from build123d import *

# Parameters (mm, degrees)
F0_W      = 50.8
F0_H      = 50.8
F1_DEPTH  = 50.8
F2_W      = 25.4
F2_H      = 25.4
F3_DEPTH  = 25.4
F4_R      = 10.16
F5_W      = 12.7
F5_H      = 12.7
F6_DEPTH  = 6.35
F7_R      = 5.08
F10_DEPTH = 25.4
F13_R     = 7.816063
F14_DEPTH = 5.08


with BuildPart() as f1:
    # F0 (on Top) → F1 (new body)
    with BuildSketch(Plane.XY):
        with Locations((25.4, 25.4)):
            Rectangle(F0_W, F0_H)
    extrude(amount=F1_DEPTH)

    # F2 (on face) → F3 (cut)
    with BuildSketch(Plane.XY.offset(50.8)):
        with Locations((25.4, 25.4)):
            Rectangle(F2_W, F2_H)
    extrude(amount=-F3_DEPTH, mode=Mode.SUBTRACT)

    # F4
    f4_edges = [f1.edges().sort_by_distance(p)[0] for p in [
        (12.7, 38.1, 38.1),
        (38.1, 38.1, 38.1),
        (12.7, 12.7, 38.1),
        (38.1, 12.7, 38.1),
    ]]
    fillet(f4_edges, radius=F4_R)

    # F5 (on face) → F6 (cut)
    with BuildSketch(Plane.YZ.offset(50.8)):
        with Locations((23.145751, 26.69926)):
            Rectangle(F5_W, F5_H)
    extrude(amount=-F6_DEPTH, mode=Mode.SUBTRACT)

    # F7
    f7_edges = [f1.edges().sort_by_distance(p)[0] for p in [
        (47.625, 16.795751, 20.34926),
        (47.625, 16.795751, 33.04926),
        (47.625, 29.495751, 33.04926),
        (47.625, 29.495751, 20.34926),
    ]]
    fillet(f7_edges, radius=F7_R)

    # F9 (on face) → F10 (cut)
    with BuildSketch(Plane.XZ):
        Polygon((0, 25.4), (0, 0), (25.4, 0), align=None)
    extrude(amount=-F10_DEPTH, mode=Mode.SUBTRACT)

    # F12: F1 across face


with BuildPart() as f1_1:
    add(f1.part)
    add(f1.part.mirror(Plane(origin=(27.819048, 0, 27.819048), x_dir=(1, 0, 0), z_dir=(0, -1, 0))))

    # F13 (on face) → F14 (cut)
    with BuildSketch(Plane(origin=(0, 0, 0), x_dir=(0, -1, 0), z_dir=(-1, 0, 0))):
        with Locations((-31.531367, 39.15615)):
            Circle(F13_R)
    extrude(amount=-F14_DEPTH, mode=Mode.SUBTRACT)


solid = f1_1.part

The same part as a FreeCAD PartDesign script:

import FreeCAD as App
import Part
import Sketcher

V = App.Vector
Q = App.Units.Quantity


def edges_at(feature, points):
    """Names of the edges that pass closest to the given points."""
    edges = feature.Shape.Edges
    near = lambda p: min(range(len(edges)), key=lambda i: edges[i].distToShape(Part.Vertex(*p))[0])
    return sorted({f"Edge{near(p) + 1}" for p in points})


def add_polygon(sketch, points):
    """Adds a closed chain of lines whose ends are joined by coincident constraints."""
    first, n = sketch.GeometryCount, len(points)
    for a, b in zip(points, points[1:] + points[:1]):
        sketch.addGeometry(Part.LineSegment(App.Vector(*a, 0), App.Vector(*b, 0)), False)
    for i in range(n):
        sketch.addConstraint(Sketcher.Constraint("Coincident", first + i, 2, first + (i + 1) % n, 1))

doc = App.newDocument("Part")
body = doc.addObject("PartDesign::Body", "Body")

# Sketch on XY plane
sketch1 = doc.addObject("Sketcher::SketchObject", "Sketch")
body.addObject(sketch1)
sketch1.AttachmentSupport = (doc.XY_Plane, [""])
sketch1.MapMode = "FlatFace"
add_polygon(sketch1, [(0, 51), (0, 0), (51, 0), (51, 51)])  # lines 0-3
sketch1.addConstraint([
    Sketcher.Constraint("Vertical", 0),
    Sketcher.Constraint("Horizontal", 1),
    Sketcher.Constraint("Vertical", 2),
    Sketcher.Constraint("Horizontal", 3),
    Sketcher.Constraint("Coincident", 0, 2, -1, 1),
    Sketcher.Constraint("Equal", 3, 0),
    Sketcher.Constraint("DistanceX", 1, 1, 1, 2, Q("2 in")),
])
pad1 = doc.addObject("PartDesign::Pad", "Pad")
body.addObject(pad1)
pad1.Profile = sketch1
pad1.Length = Q("2 in")

# Sketch on XY plane
sketch2 = doc.addObject("Sketcher::SketchObject", "Sketch001")
body.addObject(sketch2)
sketch2.AttachmentSupport = (doc.XY_Plane, [""])
sketch2.MapMode = "FlatFace"
sketch2.AttachmentOffset = App.Placement(V(0, 0, 2 * 25.4), App.Rotation())
add_polygon(sketch2, [(13, 38), (13, 13), (38, 13), (38, 38)])  # lines 0-3
sketch2.addConstraint([
    Sketcher.Constraint("Vertical", 0),
    Sketcher.Constraint("Horizontal", 1),
    Sketcher.Constraint("Vertical", 2),
    Sketcher.Constraint("Horizontal", 3),
    Sketcher.Constraint("Equal", 3, 0),
    Sketcher.Constraint("DistanceX", 1, 1, 1, 2, Q("1 in")),
    Sketcher.Constraint("DistanceX", -1, 1, 0, 2, Q("0.5 in")),
    Sketcher.Constraint("DistanceY", -1, 1, 0, 2, Q("0.5 in")),
])
pocket1 = doc.addObject("PartDesign::Pocket", "Pocket")
body.addObject(pocket1)
pocket1.Profile = sketch2
pocket1.Length = Q("1 in")
doc.recompute()

fillet = doc.addObject("PartDesign::Fillet", "Fillet")
body.addObject(fillet)
fillet.Base = (pocket1, edges_at(pocket1, [
    (12.7, 38.1, 38.1),
    (38.1, 38.1, 38.1),
    (12.7, 12.7, 38.1),
    (38.1, 12.7, 38.1),
]))
fillet.Radius = Q("0.4 in")

# Sketch on YZ plane
sketch3 = doc.addObject("Sketcher::SketchObject", "Sketch002")
body.addObject(sketch3)
sketch3.AttachmentSupport = (doc.YZ_Plane, [""])
sketch3.MapMode = "FlatFace"
sketch3.AttachmentOffset = App.Placement(V(0, 0, 2 * 25.4), App.Rotation())
add_polygon(sketch3, [(17, 33), (17, 20), (29, 20), (29, 33)])  # lines 0-3
sketch3.addConstraint([
    Sketcher.Constraint("Vertical", 0),
    Sketcher.Constraint("Horizontal", 1),
    Sketcher.Constraint("Vertical", 2),
    Sketcher.Constraint("Horizontal", 3),
    Sketcher.Constraint("Equal", 3, 0),
    Sketcher.Constraint("DistanceX", 1, 1, 1, 2, Q("0.5 in")),
    Sketcher.Constraint("DistanceX", -1, 1, 0, 2, 16.795751),
    Sketcher.Constraint("DistanceY", -1, 1, 0, 2, 20.34926),
])
pocket2 = doc.addObject("PartDesign::Pocket", "Pocket001")
body.addObject(pocket2)
pocket2.Profile = sketch3
pocket2.Length = Q("0.25 in")
doc.recompute()

fillet2 = doc.addObject("PartDesign::Fillet", "Fillet001")
body.addObject(fillet2)
fillet2.Base = (pocket2, edges_at(pocket2, [
    (47.625, 16.796, 20.349),
    (47.625, 16.796, 33.049),
    (47.625, 29.496, 33.049),
    (47.625, 29.496, 20.349),
]))
fillet2.Radius = Q("0.2 in")

# Sketch on XZ plane
sketch4 = doc.addObject("Sketcher::SketchObject", "Sketch003")
body.addObject(sketch4)
sketch4.AttachmentSupport = (doc.XZ_Plane, [""])
sketch4.MapMode = "FlatFace"
add_polygon(sketch4, [(0, 25), (0, 0), (25, 0)])  # lines 0-2
sketch4.addConstraint([
    Sketcher.Constraint("Vertical", 0),
    Sketcher.Constraint("Horizontal", 1),
    Sketcher.Constraint("Coincident", 0, 2, -1, 1),
    Sketcher.Constraint("Equal", 1, 0),
    Sketcher.Constraint("DistanceX", 1, 1, 1, 2, Q("1 in")),
])
pocket3 = doc.addObject("PartDesign::Pocket", "Pocket002")
body.addObject(pocket3)
pocket3.Profile = sketch4
pocket3.Length = Q("1 in")
body2 = doc.addObject("PartDesign::Body", "Body001")
doc.recompute()

body2.BaseFeature = body
doc.recompute()

mirroring = doc.addObject("Part::Mirroring", "Mirroring")
mirroring.Source = body
mirroring.Base = V(27.819048, 0, 27.819048)
mirroring.Normal = V(0, -1, 0)
body3 = doc.addObject("PartDesign::Body", "Body002")
body3.BaseFeature = mirroring
boolean = doc.addObject("PartDesign::Boolean", "Boolean")
body2.addObject(boolean)
boolean.Type = "Fuse"
boolean.addObjects([body3])
doc.recompute()

# Sketch on YZ plane
sketch5 = doc.addObject("Sketcher::SketchObject", "Sketch004")
body2.addObject(sketch5)
sketch5.AttachmentSupport = (doc.getObject("YZ_Plane001"), [""])
sketch5.MapMode = "FlatFace"
sketch5.addGeometry(Part.Circle(V(32, 39, 0), V(0, 0, 1), 8), False)
sketch5.addConstraint([
    Sketcher.Constraint("Diameter", 0, 15.632126),
    Sketcher.Constraint("DistanceY", -1, 1, 0, 3, 39.15615),
    Sketcher.Constraint("DistanceX", -1, 1, 0, 3, 31.531367),
])
pocket4 = doc.addObject("PartDesign::Pocket", "Pocket003")
body2.addObject(pocket4)
pocket4.Profile = sketch5
pocket4.Length = Q("0.2 in")
pocket4.Reversed = True
mirroring.Visibility = False

doc.recompute()
